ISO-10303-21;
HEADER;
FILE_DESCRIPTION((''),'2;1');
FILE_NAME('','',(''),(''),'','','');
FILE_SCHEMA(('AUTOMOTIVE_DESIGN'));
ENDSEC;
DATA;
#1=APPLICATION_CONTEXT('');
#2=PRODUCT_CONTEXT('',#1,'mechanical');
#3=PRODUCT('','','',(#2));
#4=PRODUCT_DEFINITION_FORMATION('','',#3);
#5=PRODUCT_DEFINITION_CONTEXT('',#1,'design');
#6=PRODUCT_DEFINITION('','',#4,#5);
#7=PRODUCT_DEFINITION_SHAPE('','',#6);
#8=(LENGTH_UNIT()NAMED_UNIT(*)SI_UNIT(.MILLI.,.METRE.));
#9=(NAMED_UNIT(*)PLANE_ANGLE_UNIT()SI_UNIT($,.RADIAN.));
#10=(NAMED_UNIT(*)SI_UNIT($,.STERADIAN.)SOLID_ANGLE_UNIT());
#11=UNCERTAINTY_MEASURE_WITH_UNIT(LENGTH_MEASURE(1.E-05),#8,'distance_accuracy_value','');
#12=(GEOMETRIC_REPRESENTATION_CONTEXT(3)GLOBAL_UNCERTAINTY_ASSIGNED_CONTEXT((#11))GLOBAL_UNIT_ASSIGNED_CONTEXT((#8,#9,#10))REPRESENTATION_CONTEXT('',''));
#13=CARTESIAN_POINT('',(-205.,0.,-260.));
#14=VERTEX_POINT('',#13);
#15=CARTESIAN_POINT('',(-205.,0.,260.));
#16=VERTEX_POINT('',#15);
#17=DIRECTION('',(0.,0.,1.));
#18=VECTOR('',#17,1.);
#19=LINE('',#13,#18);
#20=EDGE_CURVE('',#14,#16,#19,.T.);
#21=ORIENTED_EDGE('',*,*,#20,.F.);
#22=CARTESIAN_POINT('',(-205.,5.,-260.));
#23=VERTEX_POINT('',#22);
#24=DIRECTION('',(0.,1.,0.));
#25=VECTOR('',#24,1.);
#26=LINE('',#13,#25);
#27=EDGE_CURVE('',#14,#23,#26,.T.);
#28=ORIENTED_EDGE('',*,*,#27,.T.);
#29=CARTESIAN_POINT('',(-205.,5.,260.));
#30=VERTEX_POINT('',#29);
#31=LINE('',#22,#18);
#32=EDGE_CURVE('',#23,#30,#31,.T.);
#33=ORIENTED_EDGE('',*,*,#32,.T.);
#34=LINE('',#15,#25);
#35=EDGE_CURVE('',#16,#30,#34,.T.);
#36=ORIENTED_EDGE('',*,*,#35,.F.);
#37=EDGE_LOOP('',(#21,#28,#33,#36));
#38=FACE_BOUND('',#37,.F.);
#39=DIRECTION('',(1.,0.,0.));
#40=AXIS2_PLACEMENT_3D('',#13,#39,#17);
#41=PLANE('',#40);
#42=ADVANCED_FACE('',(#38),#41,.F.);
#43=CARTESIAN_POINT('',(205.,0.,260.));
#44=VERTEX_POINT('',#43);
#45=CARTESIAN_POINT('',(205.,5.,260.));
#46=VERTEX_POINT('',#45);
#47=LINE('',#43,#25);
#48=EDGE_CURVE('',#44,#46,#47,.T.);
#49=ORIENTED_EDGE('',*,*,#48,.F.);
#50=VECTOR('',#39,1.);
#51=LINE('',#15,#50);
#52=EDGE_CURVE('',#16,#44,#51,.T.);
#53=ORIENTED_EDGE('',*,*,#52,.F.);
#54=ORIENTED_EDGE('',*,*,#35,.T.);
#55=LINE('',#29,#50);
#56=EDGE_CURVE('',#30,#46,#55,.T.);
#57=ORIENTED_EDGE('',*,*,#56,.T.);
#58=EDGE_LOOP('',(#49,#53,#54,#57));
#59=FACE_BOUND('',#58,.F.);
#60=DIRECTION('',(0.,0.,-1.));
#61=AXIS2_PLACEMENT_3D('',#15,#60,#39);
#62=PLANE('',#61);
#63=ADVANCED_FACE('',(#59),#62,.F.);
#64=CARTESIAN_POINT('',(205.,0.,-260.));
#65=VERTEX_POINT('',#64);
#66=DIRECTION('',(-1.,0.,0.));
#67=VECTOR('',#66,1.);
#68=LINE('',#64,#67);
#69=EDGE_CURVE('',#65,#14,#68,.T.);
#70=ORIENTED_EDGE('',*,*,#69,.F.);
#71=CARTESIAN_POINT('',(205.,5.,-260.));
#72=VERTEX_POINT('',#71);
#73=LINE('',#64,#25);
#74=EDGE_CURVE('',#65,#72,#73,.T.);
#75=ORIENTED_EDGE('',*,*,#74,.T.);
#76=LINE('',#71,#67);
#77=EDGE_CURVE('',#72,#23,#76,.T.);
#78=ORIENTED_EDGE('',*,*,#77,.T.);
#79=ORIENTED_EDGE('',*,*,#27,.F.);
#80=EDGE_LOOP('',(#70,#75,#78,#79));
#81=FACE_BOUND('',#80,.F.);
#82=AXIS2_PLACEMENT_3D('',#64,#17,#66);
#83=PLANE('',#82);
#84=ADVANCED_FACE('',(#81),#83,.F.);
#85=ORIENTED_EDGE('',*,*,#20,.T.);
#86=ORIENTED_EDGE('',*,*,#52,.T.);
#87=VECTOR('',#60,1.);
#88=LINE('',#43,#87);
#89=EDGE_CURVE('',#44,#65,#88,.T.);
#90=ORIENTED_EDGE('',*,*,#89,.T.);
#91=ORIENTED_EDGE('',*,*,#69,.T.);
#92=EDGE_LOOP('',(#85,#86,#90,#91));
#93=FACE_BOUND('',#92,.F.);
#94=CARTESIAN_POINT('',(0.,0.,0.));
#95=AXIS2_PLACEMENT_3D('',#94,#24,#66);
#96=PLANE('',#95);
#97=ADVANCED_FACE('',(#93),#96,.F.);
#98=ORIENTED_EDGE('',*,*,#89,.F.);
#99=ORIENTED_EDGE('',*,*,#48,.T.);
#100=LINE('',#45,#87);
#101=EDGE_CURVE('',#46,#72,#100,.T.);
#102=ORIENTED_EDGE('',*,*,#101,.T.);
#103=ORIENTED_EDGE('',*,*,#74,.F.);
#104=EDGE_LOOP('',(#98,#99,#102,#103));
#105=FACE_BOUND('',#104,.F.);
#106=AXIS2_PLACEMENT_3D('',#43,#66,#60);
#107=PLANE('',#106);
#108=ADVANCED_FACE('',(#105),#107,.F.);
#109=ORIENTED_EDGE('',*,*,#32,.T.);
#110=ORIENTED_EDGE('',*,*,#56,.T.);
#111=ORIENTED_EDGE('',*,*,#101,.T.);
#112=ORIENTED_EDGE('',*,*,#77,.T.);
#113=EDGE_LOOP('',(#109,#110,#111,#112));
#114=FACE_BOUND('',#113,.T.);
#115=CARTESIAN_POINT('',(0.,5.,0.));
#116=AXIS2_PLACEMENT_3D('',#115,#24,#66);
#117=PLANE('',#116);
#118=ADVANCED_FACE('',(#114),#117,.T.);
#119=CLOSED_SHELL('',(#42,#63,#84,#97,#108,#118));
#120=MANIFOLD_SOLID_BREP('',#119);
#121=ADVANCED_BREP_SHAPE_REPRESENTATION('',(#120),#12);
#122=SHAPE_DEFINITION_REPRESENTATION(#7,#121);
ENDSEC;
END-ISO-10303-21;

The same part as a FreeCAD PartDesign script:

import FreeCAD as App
import Part
import Sketcher

V = App.Vector
Q = App.Units.Quantity

doc = App.newDocument("Part")
body = doc.addObject("PartDesign::Body", "Body")

sketch1 = body.newObject("Sketcher::SketchObject", "Sketch")
sketch1.AttachmentSupport = (doc.getObject("XZ_Plane"), [""])
sketch1.MapMode = "FlatFace"
sketch1.addGeometry([
    Part.LineSegment(V(-205, -260, 0), V(-205, 260, 0)),
    Part.LineSegment(V(-205, 260, 0), V(205, 260, 0)),
    Part.LineSegment(V(205, 260, 0), V(205, -260, 0)),
    Part.LineSegment(V(205, -260, 0), V(-205, -260, 0)),
], False)
sketch1.addConstraint([
    Sketcher.Constraint("Coincident", 0, 2, 1, 1),
    Sketcher.Constraint("Coincident", 1, 2, 2, 1),
    Sketcher.Constraint("Coincident", 2, 2, 3, 1),
    Sketcher.Constraint("Coincident", 3, 2, 0, 1),
    Sketcher.Constraint("Vertical", 0),
    Sketcher.Constraint("Horizontal", 1),
    Sketcher.Constraint("Vertical", 2),
    Sketcher.Constraint("Horizontal", 3),
    Sketcher.Constraint("Symmetric", 0, 2, 2, 2, -1, 1),
    Sketcher.Constraint("DistanceX", 1, 1, 1, 2, Q("410 mm")),
    Sketcher.Constraint("DistanceY", 0, 1, 0, 2, Q("520 mm")),
])
pad1 = body.newObject("PartDesign::Pad", "Pad")
pad1.Profile = sketch1
pad1.Length = 5
pad1.Reversed = True

doc.recompute()
